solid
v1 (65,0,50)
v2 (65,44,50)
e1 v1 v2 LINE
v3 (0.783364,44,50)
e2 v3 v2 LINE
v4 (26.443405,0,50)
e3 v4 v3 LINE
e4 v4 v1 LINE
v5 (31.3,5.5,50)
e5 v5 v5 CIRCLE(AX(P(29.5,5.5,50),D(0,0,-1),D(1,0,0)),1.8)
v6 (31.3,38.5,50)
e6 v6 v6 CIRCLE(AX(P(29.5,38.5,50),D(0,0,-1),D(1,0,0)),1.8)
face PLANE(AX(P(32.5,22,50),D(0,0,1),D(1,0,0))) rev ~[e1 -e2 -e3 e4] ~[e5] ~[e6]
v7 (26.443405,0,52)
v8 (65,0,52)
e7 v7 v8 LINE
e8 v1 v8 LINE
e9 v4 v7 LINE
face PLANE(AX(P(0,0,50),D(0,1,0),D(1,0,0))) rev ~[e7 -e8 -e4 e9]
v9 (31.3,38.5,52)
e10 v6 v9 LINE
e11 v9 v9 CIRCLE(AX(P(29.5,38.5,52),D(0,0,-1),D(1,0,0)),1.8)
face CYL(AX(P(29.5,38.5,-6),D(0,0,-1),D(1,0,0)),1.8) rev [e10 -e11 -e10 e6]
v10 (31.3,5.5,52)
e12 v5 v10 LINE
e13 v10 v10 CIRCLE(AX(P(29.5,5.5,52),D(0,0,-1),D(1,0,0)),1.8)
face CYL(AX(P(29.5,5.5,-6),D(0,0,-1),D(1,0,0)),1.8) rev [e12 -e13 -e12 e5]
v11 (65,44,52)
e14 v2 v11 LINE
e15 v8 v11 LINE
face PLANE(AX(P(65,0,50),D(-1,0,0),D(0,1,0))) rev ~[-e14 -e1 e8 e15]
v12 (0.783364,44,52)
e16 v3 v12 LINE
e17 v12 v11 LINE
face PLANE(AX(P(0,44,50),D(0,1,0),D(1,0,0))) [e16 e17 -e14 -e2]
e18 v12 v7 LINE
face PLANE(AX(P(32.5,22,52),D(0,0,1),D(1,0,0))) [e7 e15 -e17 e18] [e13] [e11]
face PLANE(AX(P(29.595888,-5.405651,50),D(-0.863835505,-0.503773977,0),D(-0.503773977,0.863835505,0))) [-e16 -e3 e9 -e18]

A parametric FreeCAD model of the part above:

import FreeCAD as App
import Part
import Sketcher

V = App.Vector
Q = App.Units.Quantity

doc = App.newDocument("Part")
params = doc.addObject("Spreadsheet::Sheet", "Params")
for row, (alias, value) in enumerate([
    ("sketch1_diameter", "3.6 mm"),
    ("pad1_length", "100 mm"),
    ("sketch2_diameter", "3.6 mm"),
    ("pad2_length", "100 mm"),
    ("sketch3_width", "25 mm"),
    ("sketch3_height", "60 mm"),
    ("pad3_length", "25 mm"),
    ("sketch4_width", "65 mm"),
    ("sketch4_height", "44 mm"),
    ("pad4_length", "2 mm"),
], start=1):
    params.set(f"A{row}", alias)
    params.set(f"B{row}", "=" + value)
    params.setAlias(f"B{row}", alias)

body = doc.addObject("PartDesign::Body", "Body")

# Sketch on XY plane
sketch1 = body.newObject("Sketcher::SketchObject", "Sketch")
sketch1.AttachmentSupport = (doc.getObject("XY_Plane"), [""])
sketch1.MapMode = "FlatFace"
sketch1.AttachmentOffset = App.Placement(V(0, 0, -6), App.Rotation())
sketch1.addGeometry(Part.Circle(V(29.5, 5.5, 0), V(0, 0, 1), 1.8), False)
sketch1.addConstraint(Sketcher.Constraint("Diameter", 0, Q("3.6 mm")))
sketch1.addConstraint(Sketcher.Constraint("DistanceX", -1, 1, 0, 3, Q("29.5 mm")))
sketch1.addConstraint(Sketcher.Constraint("DistanceY", -1, 1, 0, 3, Q("5.5 mm")))
sketch1.setExpression("Constraints[0]", "Params.sketch1_diameter")
pad1 = body.newObject("PartDesign::Pad", "Pad")
pad1.Profile = sketch1
pad1.setExpression("Length", "Params.pad1_length")
body2 = doc.addObject("PartDesign::Body", "Body001")

# Sketch on XY plane
sketch2 = body2.newObject("Sketcher::SketchObject", "Sketch001")
sketch2.AttachmentSupport = (doc.getObject("XY_Plane001"), [""])
sketch2.MapMode = "FlatFace"
sketch2.AttachmentOffset = App.Placement(V(0, 0, -6), App.Rotation())
sketch2.addGeometry(Part.Circle(V(29.5, 38.5, 0), V(0, 0, 1), 1.8), False)
sketch2.addConstraint(Sketcher.Constraint("Diameter", 0, Q("3.6 mm")))
sketch2.addConstraint(Sketcher.Constraint("DistanceX", -1, 1, 0, 3, Q("29.5 mm")))
sketch2.addConstraint(Sketcher.Constraint("DistanceY", -1, 1, 0, 3, Q("38.5 mm")))
sketch2.setExpression("Constraints[0]", "Params.sketch2_diameter")
pad2 = body2.newObject("PartDesign::Pad", "Pad001")
pad2.Profile = sketch2
pad2.setExpression("Length", "Params.pad2_length")
body3 = doc.addObject("PartDesign::Body", "Body002")

# Sketch on XY plane
sketch3 = body3.newObject("Sketcher::SketchObject", "Sketch002")
sketch3.AttachmentSupport = (doc.getObject("XY_Plane002"), [""])
sketch3.MapMode = "FlatFace"
sketch3.addGeometry(Part.LineSegment(V(0, 60, 0), V(0, 0, 0)), False)
sketch3.addGeometry(Part.LineSegment(V(0, 0, 0), V(25, 0, 0)), False)
sketch3.addGeometry(Part.LineSegment(V(25, 0, 0), V(25, 60, 0)), False)
sketch3.addGeometry(Part.LineSegment(V(25, 60, 0), V(0, 60, 0)), False)
sketch3.addConstraint(Sketcher.Constraint("Coincident", 0, 2, 1, 1))
sketch3.addConstraint(Sketcher.Constraint("Coincident", 1, 2, 2, 1))
sketch3.addConstraint(Sketcher.Constraint("Coincident", 2, 2, 3, 1))
sketch3.addConstraint(Sketcher.Constraint("Coincident", 3, 2, 0, 1))
sketch3.addConstraint(Sketcher.Constraint("Vertical", 0))
sketch3.addConstraint(Sketcher.Constraint("Horizontal", 1))
sketch3.addConstraint(Sketcher.Constraint("Vertical", 2))
sketch3.addConstraint(Sketcher.Constraint("Horizontal", 3))
sketch3.addConstraint(Sketcher.Constraint("Coincident", 0, 2, -1, 1))
sketch3.addConstraint(Sketcher.Constraint("DistanceX", 1, 1, 1, 2, Q("25 mm")))
sketch3.addConstraint(Sketcher.Constraint("DistanceY", 0, 2, 0, 1, Q("60 mm")))
sketch3.setExpression("Constraints[9]", "Params.sketch3_width")
sketch3.setExpression("Constraints[10]", "Params.sketch3_height")
pad3 = body3.newObject("PartDesign::Pad", "Pad002")
pad3.Profile = sketch3
pad3.setExpression("Length", "Params.pad3_length")
body4 = doc.addObject("PartDesign::Body", "Body003")
doc.recompute()

body3.Placement = App.Placement(V(8, -18, 0), App.Rotation(V(0, 0, 1), 30.25))
boolean = body4.newObject("PartDesign::Boolean", "Boolean")
boolean.Type = "Fuse"
boolean.addObjects([body3])
body5 = doc.addObject("PartDesign::Body", "Body004")

# Sketch on XY plane
sketch4 = body5.newObject("Sketcher::SketchObject", "Sketch003")
sketch4.AttachmentSupport = (doc.getObject("XY_Plane004"), [""])
sketch4.MapMode = "FlatFace"
sketch4.addGeometry(Part.LineSegment(V(0, 44, 0), V(0, 0, 0)), False)
sketch4.addGeometry(Part.LineSegment(V(0, 0, 0), V(65, 0, 0)), False)
sketch4.addGeometry(Part.LineSegment(V(65, 0, 0), V(65, 44, 0)), False)
sketch4.addGeometry(Part.LineSegment(V(65, 44, 0), V(0, 44, 0)), False)
sketch4.addConstraint(Sketcher.Constraint("Coincident", 0, 2, 1, 1))
sketch4.addConstraint(Sketcher.Constraint("Coincident", 1, 2, 2, 1))
sketch4.addConstraint(Sketcher.Constraint("Coincident", 2, 2, 3, 1))
sketch4.addConstraint(Sketcher.Constraint("Coincident", 3, 2, 0, 1))
sketch4.addConstraint(Sketcher.Constraint("Vertical", 0))
sketch4.addConstraint(Sketcher.Constraint("Horizontal", 1))
sketch4.addConstraint(Sketcher.Constraint("Vertical", 2))
sketch4.addConstraint(Sketcher.Constraint("Horizontal", 3))
sketch4.addConstraint(Sketcher.Constraint("Coincident", 0, 2, -1, 1))
sketch4.addConstraint(Sketcher.Constraint("DistanceX", 1, 1, 1, 2, Q("65 mm")))
sketch4.addConstraint(Sketcher.Constraint("DistanceY", 0, 2, 0, 1, Q("44 mm")))
sketch4.setExpression("Constraints[9]", "Params.sketch4_width")
sketch4.setExpression("Constraints[10]", "Params.sketch4_height")
pad4 = body5.newObject("PartDesign::Pad", "Pad003")
pad4.Profile = sketch4
pad4.setExpression("Length", "Params.pad4_length")
doc.recompute()

boolean2 = body5.newObject("PartDesign::Boolean", "Boolean001")
boolean2.Type = "Cut"
boolean2.addObjects([body4])
body6 = doc.addObject("PartDesign::Body", "Body005")
doc.recompute()

body5.Placement = App.Placement(V(0, 0, 50), App.Rotation(V(0, 0, 1), 0))
boolean3 = body6.newObject("PartDesign::Boolean", "Boolean002")
boolean3.Type = "Fuse"
boolean3.addObjects([body5])
doc.recompute()

boolean4 = body6.newObject("PartDesign::Boolean", "Boolean003")
boolean4.Type = "Cut"
boolean4.addObjects([body2])
doc.recompute()

boolean5 = body6.newObject("PartDesign::Boolean", "Boolean004")
boolean5.Type = "Cut"
boolean5.addObjects([body])

doc.recompute()
